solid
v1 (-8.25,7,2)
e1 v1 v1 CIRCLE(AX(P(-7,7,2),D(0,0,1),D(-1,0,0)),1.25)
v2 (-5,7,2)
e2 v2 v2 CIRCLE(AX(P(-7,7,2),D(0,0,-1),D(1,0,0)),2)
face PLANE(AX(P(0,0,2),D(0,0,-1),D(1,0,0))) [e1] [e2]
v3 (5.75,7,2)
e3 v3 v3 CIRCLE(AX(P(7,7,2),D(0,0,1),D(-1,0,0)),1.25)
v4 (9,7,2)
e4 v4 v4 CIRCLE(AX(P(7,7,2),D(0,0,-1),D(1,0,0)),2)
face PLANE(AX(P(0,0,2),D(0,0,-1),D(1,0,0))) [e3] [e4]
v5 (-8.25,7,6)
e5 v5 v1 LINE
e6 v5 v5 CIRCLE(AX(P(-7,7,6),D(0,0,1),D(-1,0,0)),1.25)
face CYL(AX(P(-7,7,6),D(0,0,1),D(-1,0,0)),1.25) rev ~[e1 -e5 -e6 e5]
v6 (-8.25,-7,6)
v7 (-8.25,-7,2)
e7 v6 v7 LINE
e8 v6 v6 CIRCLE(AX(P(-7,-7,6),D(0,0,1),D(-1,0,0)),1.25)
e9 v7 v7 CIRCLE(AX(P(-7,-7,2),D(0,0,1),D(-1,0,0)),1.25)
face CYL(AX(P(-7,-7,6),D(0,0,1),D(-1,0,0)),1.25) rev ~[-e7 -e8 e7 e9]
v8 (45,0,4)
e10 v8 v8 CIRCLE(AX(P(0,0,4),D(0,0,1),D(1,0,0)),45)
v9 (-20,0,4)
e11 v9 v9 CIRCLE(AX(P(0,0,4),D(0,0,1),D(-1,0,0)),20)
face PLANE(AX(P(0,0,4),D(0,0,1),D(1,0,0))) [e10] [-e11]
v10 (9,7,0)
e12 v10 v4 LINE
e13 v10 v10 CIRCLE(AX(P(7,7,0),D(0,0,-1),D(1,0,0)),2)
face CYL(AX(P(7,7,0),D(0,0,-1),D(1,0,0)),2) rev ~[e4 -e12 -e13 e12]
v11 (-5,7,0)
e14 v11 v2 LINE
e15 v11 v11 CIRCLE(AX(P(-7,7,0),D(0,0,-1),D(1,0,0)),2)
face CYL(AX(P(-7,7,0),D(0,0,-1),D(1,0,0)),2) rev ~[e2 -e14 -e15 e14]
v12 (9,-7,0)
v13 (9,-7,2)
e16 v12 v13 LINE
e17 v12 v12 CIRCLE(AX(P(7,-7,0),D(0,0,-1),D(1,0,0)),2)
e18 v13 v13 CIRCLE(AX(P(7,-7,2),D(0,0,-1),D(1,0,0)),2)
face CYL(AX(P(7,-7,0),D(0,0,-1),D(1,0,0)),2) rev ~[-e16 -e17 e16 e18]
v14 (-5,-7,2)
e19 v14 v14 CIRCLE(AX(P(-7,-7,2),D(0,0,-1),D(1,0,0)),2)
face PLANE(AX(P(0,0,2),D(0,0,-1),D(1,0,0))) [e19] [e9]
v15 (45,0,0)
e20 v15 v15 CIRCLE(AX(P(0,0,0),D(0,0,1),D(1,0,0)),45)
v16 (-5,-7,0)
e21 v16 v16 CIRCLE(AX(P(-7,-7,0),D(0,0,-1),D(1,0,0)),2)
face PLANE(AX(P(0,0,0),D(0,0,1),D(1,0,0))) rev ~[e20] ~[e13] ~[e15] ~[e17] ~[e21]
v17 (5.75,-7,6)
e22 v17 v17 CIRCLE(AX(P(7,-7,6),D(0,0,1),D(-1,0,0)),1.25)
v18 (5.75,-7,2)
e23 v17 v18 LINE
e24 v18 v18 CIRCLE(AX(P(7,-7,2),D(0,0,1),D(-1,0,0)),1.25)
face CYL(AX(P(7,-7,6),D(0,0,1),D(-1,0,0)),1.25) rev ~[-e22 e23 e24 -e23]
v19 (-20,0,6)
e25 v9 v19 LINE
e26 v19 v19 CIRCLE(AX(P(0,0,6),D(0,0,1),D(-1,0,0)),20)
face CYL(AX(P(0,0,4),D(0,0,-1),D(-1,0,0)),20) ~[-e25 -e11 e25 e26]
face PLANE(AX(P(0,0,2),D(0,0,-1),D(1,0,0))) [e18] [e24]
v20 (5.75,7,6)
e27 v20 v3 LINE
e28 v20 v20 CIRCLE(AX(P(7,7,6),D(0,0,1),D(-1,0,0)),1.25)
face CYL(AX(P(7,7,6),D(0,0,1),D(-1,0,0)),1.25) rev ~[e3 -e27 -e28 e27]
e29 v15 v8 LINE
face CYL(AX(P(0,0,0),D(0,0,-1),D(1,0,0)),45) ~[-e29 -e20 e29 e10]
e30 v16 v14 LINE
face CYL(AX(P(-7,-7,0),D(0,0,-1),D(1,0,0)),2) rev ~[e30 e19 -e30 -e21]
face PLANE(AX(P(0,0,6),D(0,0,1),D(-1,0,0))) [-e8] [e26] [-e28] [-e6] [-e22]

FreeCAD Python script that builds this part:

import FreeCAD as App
import Part
import Sketcher

doc = App.newDocument("Part")
params = doc.addObject("Spreadsheet::Sheet", "Params")
for row, (alias, value) in enumerate([
    ("sketch1_diameter", "90 mm"),
    ("pad1_length", "4 mm"),
    ("sketch2_diameter", "40 mm"),
    ("pad2_length", "2 mm"),
    ("sketch3_diameter", "2.5 mm"),
    ("pocket1_length", "6 mm"),
    ("sketch4_diameter", "4 mm"),
    ("sketch4_diameter2", "2.5 mm"),
    ("pocket2_length", "2 mm"),
], start=1):
    params.set(f"A{row}", alias)
    params.set(f"B{row}", "=" + value)
    params.setAlias(f"B{row}", alias)

body = doc.addObject("PartDesign::Body", "Body")

# Sketch on XY plane
sketch1 = doc.addObject("Sketcher::SketchObject", "Sketch")
body.addObject(sketch1)
sketch1.AttachmentSupport = (doc.XY_Plane, [""])
sketch1.MapMode = "FlatFace"
sketch1.addGeometry(Part.Circle(App.Vector(0, 0, 0), App.Vector(0, 0, 1), 45), False)
sketch1.addConstraint([
    Sketcher.Constraint("Coincident", 0, 3, -1, 1),
    Sketcher.Constraint("Diameter", 0, 90.0),
])
sketch1.setExpression("Constraints[1]", "Params.sketch1_diameter")
pad1 = doc.addObject("PartDesign::Pad", "Pad")
body.addObject(pad1)
pad1.Profile = sketch1
pad1.setExpression("Length", "Params.pad1_length")

# Sketch on XY plane
sketch2 = doc.addObject("Sketcher::SketchObject", "Sketch001")
body.addObject(sketch2)
sketch2.AttachmentSupport = (doc.XY_Plane, [""])
sketch2.MapMode = "FlatFace"
sketch2.AttachmentOffset = App.Placement(App.Vector(0, 0, 4), App.Rotation())
sketch2.addGeometry(Part.Circle(App.Vector(0, 0, 0), App.Vector(0, 0, 1), 20), False)
sketch2.addConstraint([
    Sketcher.Constraint("Coincident", 0, 3, -1, 1),
    Sketcher.Constraint("Diameter", 0, 40.0),
])
sketch2.setExpression("Constraints[1]", "Params.sketch2_diameter")
pad2 = doc.addObject("PartDesign::Pad", "Pad001")
body.addObject(pad2)
pad2.Profile = sketch2
pad2.setExpression("Length", "Params.pad2_length")

# Sketch on XY plane
sketch3 = doc.addObject("Sketcher::SketchObject", "Sketch002")
body.addObject(sketch3)
sketch3.AttachmentSupport = (doc.XY_Plane, [""])
sketch3.MapMode = "FlatFace"
sketch3.AttachmentOffset = App.Placement(App.Vector(0, 0, 6), App.Rotation())
sketch3.addGeometry([
    Part.Circle(App.Vector(-7, 7, 0), App.Vector(0, 0, 1), 1.25),
    Part.Circle(App.Vector(7, 7, 0), App.Vector(0, 0, 1), 1.25),
    Part.Circle(App.Vector(-7, -7, 0), App.Vector(0, 0, 1), 1.25),
    Part.Circle(App.Vector(7, -7, 0), App.Vector(0, 0, 1), 1.25),
], False)
sketch3.addConstraint([
    Sketcher.Constraint("Equal", 0, 1),
    Sketcher.Constraint("Equal", 1, 2),
    Sketcher.Constraint("Equal", 2, 3),
    Sketcher.Constraint("Symmetric", 1, 3, 2, 3, -1, 1),
    Sketcher.Constraint("Symmetric", 0, 3, 3, 3, -1, 1),
    Sketcher.Constraint("Symmetric", 0, 3, 1, 3, -2),
    Sketcher.Constraint("Diameter", 0, 2.5),
    Sketcher.Constraint("DistanceX", 0, 3, -1, 1, 7.0),
    Sketcher.Constraint("DistanceY", -1, 1, 0, 3, 7.0),
])
sketch3.setExpression("Constraints[6]", "Params.sketch3_diameter")
pocket1 = doc.addObject("PartDesign::Pocket", "Pocket")
body.addObject(pocket1)
pocket1.Profile = sketch3
pocket1.setExpression("Length", "Params.pocket1_length")

# Sketch on XY plane
sketch4 = doc.addObject("Sketcher::SketchObject", "Sketch003")
body.addObject(sketch4)
sketch4.AttachmentSupport = (doc.XY_Plane, [""])
sketch4.MapMode = "FlatFace"
sketch4.addGeometry([
    Part.Circle(App.Vector(-7, -7, 0), App.Vector(0, 0, 1), 2),  # 0
    Part.Circle(App.Vector(-7, -7, 0), App.Vector(0, 0, 1), 1.25),  # 1
    Part.Circle(App.Vector(7, -7, 0), App.Vector(0, 0, 1), 2),  # 2
    Part.Circle(App.Vector(7, -7, 0), App.Vector(0, 0, 1), 1.25),  # 3
    Part.Circle(App.Vector(-7, 7, 0), App.Vector(0, 0, 1), 2),  # 4
    Part.Circle(App.Vector(-7, 7, 0), App.Vector(0, 0, 1), 1.25),  # 5
    Part.Circle(App.Vector(7, 7, 0), App.Vector(0, 0, 1), 2),  # 6
    Part.Circle(App.Vector(7, 7, 0), App.Vector(0, 0, 1), 1.25),  # 7
], False)
sketch4.addConstraint([
    Sketcher.Constraint("Coincident", 1, 3, 0, 3),
    Sketcher.Constraint("Coincident", 3, 3, 2, 3),
    Sketcher.Constraint("Coincident", 5, 3, 4, 3),
    Sketcher.Constraint("Coincident", 7, 3, 6, 3),
    Sketcher.Constraint("Equal", 0, 2),
    Sketcher.Constraint("Equal", 1, 3),
    Sketcher.Constraint("Equal", 2, 4),
    Sketcher.Constraint("Equal", 3, 5),
    Sketcher.Constraint("Equal", 4, 6),
    Sketcher.Constraint("Equal", 5, 7),
    Sketcher.Constraint("Symmetric", 2, 3, 4, 3, -1, 1),
    Sketcher.Constraint("Symmetric", 0, 3, 6, 3, -1, 1),
    Sketcher.Constraint("Symmetric", 0, 3, 2, 3, -2),
    Sketcher.Constraint("Diameter", 0, 4.0),
    Sketcher.Constraint("Diameter", 1, 2.5),
    Sketcher.Constraint("DistanceX", 0, 3, -1, 1, 7.0),
    Sketcher.Constraint("DistanceY", 0, 3, -1, 1, 7.0),
])
sketch4.setExpression("Constraints[13]", "Params.sketch4_diameter")
sketch4.setExpression("Constraints[14]", "Params.sketch4_diameter2")
pocket2 = doc.addObject("PartDesign::Pocket", "Pocket001")
body.addObject(pocket2)
pocket2.Profile = sketch4
pocket2.setExpression("Length", "Params.pocket2_length")
pocket2.Reversed = True

doc.recompute()
